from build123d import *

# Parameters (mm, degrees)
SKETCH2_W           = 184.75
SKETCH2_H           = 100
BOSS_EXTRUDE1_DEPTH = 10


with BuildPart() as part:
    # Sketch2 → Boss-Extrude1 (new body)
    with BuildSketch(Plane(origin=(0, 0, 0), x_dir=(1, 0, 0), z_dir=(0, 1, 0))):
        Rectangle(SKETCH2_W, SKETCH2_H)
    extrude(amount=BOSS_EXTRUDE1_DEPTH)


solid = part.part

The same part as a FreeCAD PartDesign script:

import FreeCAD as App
import Part
import Sketcher

V = App.Vector
Q = App.Units.Quantity

doc = App.newDocument("Part")
body = doc.addObject("PartDesign::Body", "Body")

sketch1 = body.newObject("Sketcher::SketchObject", "Sketch")
sketch1.AttachmentSupport = (doc.getObject("XZ_Plane"), [""])
sketch1.MapMode = "FlatFace"
sketch1.addGeometry(Part.LineSegment(V(-92.375, -50, 0), V(-92.375, 50, 0)), False)
sketch1.addGeometry(Part.LineSegment(V(-92.375, 50, 0), V(92.375, 50, 0)), False)
sketch1.addGeometry(Part.LineSegment(V(92.375, 50, 0), V(92.375, -50, 0)), False)
sketch1.addGeometry(Part.LineSegment(V(92.375, -50, 0), V(-92.375, -50, 0)), False)
sketch1.addConstraint(Sketcher.Constraint("Coincident", 0, 2, 1, 1))
sketch1.addConstraint(Sketcher.Constraint("Coincident", 1, 2, 2, 1))
sketch1.addConstraint(Sketcher.Constraint("Coincident", 2, 2, 3, 1))
sketch1.addConstraint(Sketcher.Constraint("Coincident", 3, 2, 0, 1))
sketch1.addConstraint(Sketcher.Constraint("Vertical", 0))
sketch1.addConstraint(Sketcher.Constraint("Horizontal", 1))
sketch1.addConstraint(Sketcher.Constraint("Vertical", 2))
sketch1.addConstraint(Sketcher.Constraint("Horizontal", 3))
sketch1.addConstraint(Sketcher.Constraint("Symmetric", 0, 2, 2, 2, -1, 1))
sketch1.addConstraint(Sketcher.Constraint("DistanceY", 0, 1, 0, 2, Q("100 mm")))
sketch1.addConstraint(Sketcher.Constraint("DistanceX", 1, 1, 1, 2, Q("184.75 mm")))
pad1 = body.newObject("PartDesign::Pad", "Pad")
pad1.Profile = sketch1
pad1.Length = 10
pad1.Reversed = True

doc.recompute()
